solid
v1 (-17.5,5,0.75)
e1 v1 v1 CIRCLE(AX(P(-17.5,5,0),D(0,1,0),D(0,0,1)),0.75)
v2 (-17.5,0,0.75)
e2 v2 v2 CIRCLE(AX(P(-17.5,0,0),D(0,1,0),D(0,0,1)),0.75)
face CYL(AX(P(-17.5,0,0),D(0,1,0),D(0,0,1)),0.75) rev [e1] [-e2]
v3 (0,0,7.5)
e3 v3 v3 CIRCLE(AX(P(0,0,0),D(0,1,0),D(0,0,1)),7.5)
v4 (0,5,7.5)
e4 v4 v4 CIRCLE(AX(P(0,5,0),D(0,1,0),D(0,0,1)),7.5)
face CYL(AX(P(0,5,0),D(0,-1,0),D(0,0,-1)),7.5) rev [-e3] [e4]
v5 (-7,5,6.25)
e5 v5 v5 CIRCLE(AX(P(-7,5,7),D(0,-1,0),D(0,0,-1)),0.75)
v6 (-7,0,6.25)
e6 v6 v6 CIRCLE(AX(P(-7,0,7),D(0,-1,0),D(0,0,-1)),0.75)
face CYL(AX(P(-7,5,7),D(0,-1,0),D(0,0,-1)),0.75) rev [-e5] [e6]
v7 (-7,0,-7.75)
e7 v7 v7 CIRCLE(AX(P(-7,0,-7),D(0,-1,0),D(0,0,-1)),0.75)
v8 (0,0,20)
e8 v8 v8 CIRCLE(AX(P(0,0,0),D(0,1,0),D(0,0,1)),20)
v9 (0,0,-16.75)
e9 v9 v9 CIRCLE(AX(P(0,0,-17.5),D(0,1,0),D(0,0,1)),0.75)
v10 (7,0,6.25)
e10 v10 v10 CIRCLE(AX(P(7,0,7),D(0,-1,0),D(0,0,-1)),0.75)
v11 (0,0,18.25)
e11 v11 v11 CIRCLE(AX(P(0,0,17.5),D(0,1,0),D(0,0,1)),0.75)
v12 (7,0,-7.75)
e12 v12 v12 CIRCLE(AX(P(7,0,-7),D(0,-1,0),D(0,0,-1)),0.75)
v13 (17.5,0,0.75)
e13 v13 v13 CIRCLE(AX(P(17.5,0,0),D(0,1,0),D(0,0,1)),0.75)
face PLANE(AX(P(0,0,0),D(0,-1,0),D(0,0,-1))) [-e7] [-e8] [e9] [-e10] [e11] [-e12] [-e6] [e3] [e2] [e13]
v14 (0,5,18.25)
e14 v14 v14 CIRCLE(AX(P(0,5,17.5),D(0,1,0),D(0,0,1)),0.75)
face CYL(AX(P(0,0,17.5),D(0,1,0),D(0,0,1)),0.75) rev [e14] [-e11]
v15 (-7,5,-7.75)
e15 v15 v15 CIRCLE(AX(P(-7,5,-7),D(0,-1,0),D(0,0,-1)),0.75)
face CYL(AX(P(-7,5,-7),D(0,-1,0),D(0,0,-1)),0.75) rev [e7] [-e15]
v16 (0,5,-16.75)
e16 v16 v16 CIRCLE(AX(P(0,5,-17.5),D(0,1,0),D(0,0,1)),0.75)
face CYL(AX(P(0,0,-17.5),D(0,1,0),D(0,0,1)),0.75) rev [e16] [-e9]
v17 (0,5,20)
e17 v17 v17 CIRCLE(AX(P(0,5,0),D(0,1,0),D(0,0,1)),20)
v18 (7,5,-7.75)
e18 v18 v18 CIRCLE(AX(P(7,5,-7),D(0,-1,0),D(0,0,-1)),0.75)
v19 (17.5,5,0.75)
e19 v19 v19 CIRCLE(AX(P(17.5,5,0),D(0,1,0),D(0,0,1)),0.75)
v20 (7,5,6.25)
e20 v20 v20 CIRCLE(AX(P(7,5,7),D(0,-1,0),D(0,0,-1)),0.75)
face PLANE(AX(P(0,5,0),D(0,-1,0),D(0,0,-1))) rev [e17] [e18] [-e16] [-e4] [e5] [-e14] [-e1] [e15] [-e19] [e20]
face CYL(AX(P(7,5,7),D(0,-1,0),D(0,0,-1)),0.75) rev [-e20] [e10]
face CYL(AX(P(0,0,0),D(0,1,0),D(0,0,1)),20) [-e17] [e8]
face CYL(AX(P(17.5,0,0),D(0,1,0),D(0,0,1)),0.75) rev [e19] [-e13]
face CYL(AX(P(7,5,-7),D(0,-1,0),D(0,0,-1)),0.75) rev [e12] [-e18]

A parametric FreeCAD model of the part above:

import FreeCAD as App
import Part
import Sketcher
from FreeCAD import Vector

doc = App.newDocument("Part")
body = doc.addObject("PartDesign::Body", "Body")

# Sketch on XZ plane
sketch1 = doc.addObject("Sketcher::SketchObject", "Sketch")
body.addObject(sketch1)
sketch1.AttachmentSupport = (doc.XZ_Plane, [""])
sketch1.MapMode = "FlatFace"
sketch1.addGeometry(Part.LineSegment(Vector(-25, -25, 0), Vector(-25, 25, 0)), False)
sketch1.addGeometry(Part.LineSegment(Vector(-25, 25, 0), Vector(25, 25, 0)), False)
sketch1.addGeometry(Part.LineSegment(Vector(25, 25, 0), Vector(25, -25, 0)), False)
sketch1.addGeometry(Part.LineSegment(Vector(25, -25, 0), Vector(-25, -25, 0)), False)
sketch1.addGeometry(Part.Circle(Vector(0, 0, 0), Vector(0, 0, 1), 8), False)
sketch1.addConstraint(Sketcher.Constraint("Coincident", 0, 2, 1, 1))
sketch1.addConstraint(Sketcher.Constraint("Coincident", 1, 2, 2, 1))
sketch1.addConstraint(Sketcher.Constraint("Coincident", 2, 2, 3, 1))
sketch1.addConstraint(Sketcher.Constraint("Coincident", 3, 2, 0, 1))
sketch1.addConstraint(Sketcher.Constraint("Vertical", 0))
sketch1.addConstraint(Sketcher.Constraint("Horizontal", 1))
sketch1.addConstraint(Sketcher.Constraint("Vertical", 2))
sketch1.addConstraint(Sketcher.Constraint("Horizontal", 3))
sketch1.addConstraint(Sketcher.Constraint("Coincident", 4, 3, -1, 1))
sketch1.addConstraint(Sketcher.Constraint("Symmetric", 0, 2, 2, 2, -1, 1))
sketch1.addConstraint(Sketcher.Constraint("Equal", 3, 0))
sketch1.addConstraint(Sketcher.Constraint("Diameter", 4, 15.0))
sketch1.addConstraint(Sketcher.Constraint("DistanceX", 1, 1, 1, 2, 50.0))
pad1 = doc.addObject("PartDesign::Pad", "Pad")
body.addObject(pad1)
pad1.Profile = sketch1
pad1.Length = 5
pad1.Reversed = True

# Sketch on XZ plane
sketch2 = doc.addObject("Sketcher::SketchObject", "Sketch001")
body.addObject(sketch2)
sketch2.AttachmentSupport = (doc.XZ_Plane, [""])
sketch2.MapMode = "FlatFace"
sketch2.addGeometry(Part.Circle(Vector(-7, 7, 0), Vector(0, 0, 1), 0.8), False)
sketch2.addGeometry(Part.Circle(Vector(7, 7, 0), Vector(0, 0, 1), 0.8), False)
sketch2.addGeometry(Part.Circle(Vector(7, -7, 0), Vector(0, 0, 1), 0.8), False)
sketch2.addGeometry(Part.Circle(Vector(-7, -7, 0), Vector(0, 0, 1), 0.8), False)
sketch2.addConstraint(Sketcher.Constraint("Equal", 0, 1))
sketch2.addConstraint(Sketcher.Constraint("Equal", 1, 2))
sketch2.addConstraint(Sketcher.Constraint("Equal", 2, 3))
sketch2.addConstraint(Sketcher.Constraint("Symmetric", 0, 3, 2, 3, -1, 1))
sketch2.addConstraint(Sketcher.Constraint("Symmetric", 1, 3, 3, 3, -1, 1))
sketch2.addConstraint(Sketcher.Constraint("Symmetric", 0, 3, 1, 3, -2))
sketch2.addConstraint(Sketcher.Constraint("Diameter", 0, 1.5))
sketch2.addConstraint(Sketcher.Constraint("DistanceX", 0, 3, -1, 1, 7.0))
sketch2.addConstraint(Sketcher.Constraint("DistanceY", -1, 1, 0, 3, 7.0))
pocket1 = doc.addObject("PartDesign::Pocket", "Pocket")
body.addObject(pocket1)
pocket1.Profile = sketch2
pocket1.Type = "ThroughAll"

# Sketch on XZ plane
sketch3 = doc.addObject("Sketcher::SketchObject", "Sketch002")
body.addObject(sketch3)
sketch3.AttachmentSupport = (doc.XZ_Plane, [""])
sketch3.MapMode = "FlatFace"
sketch3.AttachmentOffset = App.Placement(Vector(0, 0, -5), App.Rotation())
sketch3.addGeometry(Part.Circle(Vector(0, 17.5, 0), Vector(0, 0, 1), 0.8), False)
sketch3.addGeometry(Part.Circle(Vector(0, -17.5, 0), Vector(0, 0, 1), 0.8), False)
sketch3.addGeometry(Part.Circle(Vector(17.5, 0, 0), Vector(0, 0, 1), 0.8), False)
sketch3.addGeometry(Part.Circle(Vector(-17.5, 0, 0), Vector(0, 0, 1), 0.8), False)
sketch3.addConstraint(Sketcher.Constraint("Equal", 0, 1))
sketch3.addConstraint(Sketcher.Constraint("Equal", 1, 2))
sketch3.addConstraint(Sketcher.Constraint("Equal", 2, 3))
sketch3.addConstraint(Sketcher.Constraint("Symmetric", 0, 3, 1, 3, -1, 1))
sketch3.addConstraint(Sketcher.Constraint("Symmetric", 2, 3, 3, 3, -1, 1))
sketch3.addConstraint(Sketcher.Constraint("PointOnObject", 0, 3, -2))
sketch3.addConstraint(Sketcher.Constraint("PointOnObject", 2, 3, -1))
sketch3.addConstraint(Sketcher.Constraint("Diameter", 0, 1.5))
sketch3.addConstraint(Sketcher.Constraint("DistanceY", 1, 3, 0, 3, 35.0))
sketch3.addConstraint(Sketcher.Constraint("DistanceX", 3, 3, 2, 3, 35.0))
pocket2 = doc.addObject("PartDesign::Pocket", "Pocket001")
body.addObject(pocket2)
pocket2.Profile = sketch3
pocket2.Type = "ThroughAll"
pocket2.Reversed = True

# Sketch on XZ plane
sketch4 = doc.addObject("Sketcher::SketchObject", "Sketch003")
body.addObject(sketch4)
sketch4.AttachmentSupport = (doc.XZ_Plane, [""])
sketch4.MapMode = "FlatFace"
sketch4.AttachmentOffset = App.Placement(Vector(0, 0, -5), App.Rotation())
sketch4.addGeometry(Part.LineSegment(Vector(-33, -33, 0), Vector(-33, 33, 0)), False)
sketch4.addGeometry(Part.LineSegment(Vector(-33, 33, 0), Vector(33, 33, 0)), False)
sketch4.addGeometry(Part.LineSegment(Vector(33, 33, 0), Vector(33, -33, 0)), False)
sketch4.addGeometry(Part.LineSegment(Vector(33, -33, 0), Vector(-33, -33, 0)), False)
sketch4.addGeometry(Part.Circle(Vector(0, 0, 0), Vector(0, 0, 1), 20), False)
sketch4.addConstraint(Sketcher.Constraint("Coincident", 0, 2, 1, 1))
sketch4.addConstraint(Sketcher.Constraint("Coincident", 1, 2, 2, 1))
sketch4.addConstraint(Sketcher.Constraint("Coincident", 2, 2, 3, 1))
sketch4.addConstraint(Sketcher.Constraint("Coincident", 3, 2, 0, 1))
sketch4.addConstraint(Sketcher.Constraint("Vertical", 0))
sketch4.addConstraint(Sketcher.Constraint("Horizontal", 1))
sketch4.addConstraint(Sketcher.Constraint("Vertical", 2))
sketch4.addConstraint(Sketcher.Constraint("Horizontal", 3))
sketch4.addConstraint(Sketcher.Constraint("Coincident", 4, 3, -1, 1))
sketch4.addConstraint(Sketcher.Constraint("Symmetric", 0, 2, 2, 2, -1, 1))
sketch4.addConstraint(Sketcher.Constraint("Equal", 3, 0))
sketch4.addConstraint(Sketcher.Constraint("Diameter", 4, 40.0))
sketch4.addConstraint(Sketcher.Constraint("DistanceX", 1, 1, 1, 2, 66.178))
pocket3 = doc.addObject("PartDesign::Pocket", "Pocket002")
body.addObject(pocket3)
pocket3.Profile = sketch4
pocket3.Type = "ThroughAll"
pocket3.Reversed = True

doc.recompute()
